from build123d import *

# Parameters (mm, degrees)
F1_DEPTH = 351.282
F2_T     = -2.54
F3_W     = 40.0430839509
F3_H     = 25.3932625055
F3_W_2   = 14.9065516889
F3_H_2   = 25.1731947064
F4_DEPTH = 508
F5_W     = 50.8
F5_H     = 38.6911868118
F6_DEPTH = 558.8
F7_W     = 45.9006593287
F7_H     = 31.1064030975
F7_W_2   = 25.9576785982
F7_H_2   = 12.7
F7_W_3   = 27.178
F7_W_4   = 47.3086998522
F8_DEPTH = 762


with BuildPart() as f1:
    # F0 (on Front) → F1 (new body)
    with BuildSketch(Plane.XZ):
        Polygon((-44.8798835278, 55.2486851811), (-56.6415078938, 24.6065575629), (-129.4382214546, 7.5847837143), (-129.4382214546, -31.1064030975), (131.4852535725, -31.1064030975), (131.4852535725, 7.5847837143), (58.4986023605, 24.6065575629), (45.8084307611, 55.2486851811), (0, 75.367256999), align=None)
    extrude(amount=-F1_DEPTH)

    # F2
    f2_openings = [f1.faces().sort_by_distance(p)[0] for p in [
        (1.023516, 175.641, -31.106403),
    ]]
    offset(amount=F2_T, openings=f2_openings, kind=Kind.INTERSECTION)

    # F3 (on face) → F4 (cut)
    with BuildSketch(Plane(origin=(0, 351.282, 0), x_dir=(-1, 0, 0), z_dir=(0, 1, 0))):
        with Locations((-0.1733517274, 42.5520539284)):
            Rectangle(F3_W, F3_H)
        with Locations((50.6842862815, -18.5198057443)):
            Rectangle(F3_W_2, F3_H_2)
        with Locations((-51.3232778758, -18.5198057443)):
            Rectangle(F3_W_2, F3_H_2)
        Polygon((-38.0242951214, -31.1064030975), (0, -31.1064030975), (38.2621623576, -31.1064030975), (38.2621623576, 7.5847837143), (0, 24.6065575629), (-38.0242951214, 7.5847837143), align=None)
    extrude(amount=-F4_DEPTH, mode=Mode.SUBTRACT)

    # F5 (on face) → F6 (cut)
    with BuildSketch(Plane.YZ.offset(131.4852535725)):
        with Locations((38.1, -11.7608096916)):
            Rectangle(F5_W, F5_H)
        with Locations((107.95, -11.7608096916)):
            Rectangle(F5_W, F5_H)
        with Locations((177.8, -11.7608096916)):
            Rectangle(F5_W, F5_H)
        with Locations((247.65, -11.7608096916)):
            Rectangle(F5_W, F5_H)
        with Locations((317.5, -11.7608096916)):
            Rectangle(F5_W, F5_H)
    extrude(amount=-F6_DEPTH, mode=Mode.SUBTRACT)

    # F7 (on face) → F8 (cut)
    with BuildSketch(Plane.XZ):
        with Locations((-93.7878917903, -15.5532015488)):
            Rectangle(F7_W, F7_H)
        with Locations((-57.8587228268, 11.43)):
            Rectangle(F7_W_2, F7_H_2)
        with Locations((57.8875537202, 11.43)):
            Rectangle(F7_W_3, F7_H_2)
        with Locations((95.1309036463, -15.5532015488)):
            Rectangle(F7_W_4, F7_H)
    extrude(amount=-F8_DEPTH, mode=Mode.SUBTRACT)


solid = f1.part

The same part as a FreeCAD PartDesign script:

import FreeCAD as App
import Part
import Sketcher
from FreeCAD import Vector
Q = App.Units.Quantity


def faces_at(feature, points):
    """Names of the faces that lie closest to the given points."""
    faces = feature.Shape.Faces
    near = lambda p: min(range(len(faces)), key=lambda i: faces[i].distToShape(Part.Vertex(*p))[0])
    return sorted({f"Face{near(p) + 1}" for p in points})


def add_polygon(sketch, points):
    """Adds a closed chain of lines whose ends are joined by coincident constraints."""
    first, n = sketch.GeometryCount, len(points)
    for a, b in zip(points, points[1:] + points[:1]):
        sketch.addGeometry(Part.LineSegment(App.Vector(*a, 0), App.Vector(*b, 0)), False)
    for i in range(n):
        sketch.addConstraint(Sketcher.Constraint("Coincident", first + i, 2, first + (i + 1) % n, 1))

doc = App.newDocument("Part")
body = doc.addObject("PartDesign::Body", "Body")

# Sketch on XZ plane
sketch1 = body.newObject("Sketcher::SketchObject", "Sketch")
sketch1.AttachmentSupport = (doc.getObject("XZ_Plane"), [""])
sketch1.MapMode = "FlatFace"
add_polygon(sketch1, [(-45, 55), (-57, 25), (-129, 8), (-129, -31), (131, -31), (131, 8), (58, 25), (46, 55), (0, 75)])  # lines 0-8
sketch1.addConstraint([
    Sketcher.Constraint("Vertical", 2),
    Sketcher.Constraint("Horizontal", 3),
    Sketcher.Constraint("Vertical", 4),
    Sketcher.Constraint("PointOnObject", 7, 2, -2),
    Sketcher.Constraint("Horizontal", 1, 2, 4, 2),
    Sketcher.Constraint("Horizontal", 0, 2, 5, 2),
    Sketcher.Constraint("Horizontal", 6, 2, 8, 2),
    Sketcher.Constraint("Distance", 0, Q("1.2922 in")),
    Sketcher.Constraint("Distance", 1, 74.760299),
    Sketcher.Constraint("DistanceY", 4, 2, 6, 2, 47.663901),
    Sketcher.Constraint("DistanceY", 0, 2, 7, 2, 50.760699),
    Sketcher.Constraint("Distance", 5, 74.94526),
    Sketcher.Constraint("DistanceX", 3, 1, 3, 2, 260.923475),
    Sketcher.Constraint("DistanceY", 2, 2, 2, 1, 38.691187),
    Sketcher.Constraint("DistanceX", 1, 2, -1, 1, 129.438221),
    Sketcher.Constraint("DistanceX", -1, 1, 6, 2, 45.808431),
    Sketcher.Constraint("DistanceY", 2, 2, 0, 2, 55.712961),
    Sketcher.Constraint("DistanceY", -1, 1, 0, 2, 24.606558),
])
pad1 = body.newObject("PartDesign::Pad", "Pad")
pad1.Profile = sketch1
pad1.Length = Q("13.83 in")
pad1.Reversed = True
doc.recompute()

thickness = body.newObject("PartDesign::Thickness", "Thickness")
thickness.Base = (pad1, faces_at(pad1, [(1.024, 175.641, -31.106)]))
thickness.Value = Q("0.1 in")
thickness.Reversed = True
thickness.Join = "Intersection"

# Sketch on XZ plane
sketch2 = body.newObject("Sketcher::SketchObject", "Sketch001")
sketch2.AttachmentSupport = (doc.getObject("XZ_Plane"), [""])
sketch2.MapMode = "FlatFace"
sketch2.AttachmentOffset = App.Placement(Vector(0, 0, -13.83 * 25.4), App.Rotation())
add_polygon(sketch2, [(20, 55), (20, 30), (-20, 30), (-20, 55)])  # lines 0-3
add_polygon(sketch2, [(-43, -6), (-43, -31), (-58, -31), (-58, -6)])  # lines 4-7
add_polygon(sketch2, [(59, -6), (59, -31), (44, -31), (44, -6)])  # lines 8-11
add_polygon(sketch2, [(38, -31), (-38, -31), (-38, 8), (0, 25), (38, 8)])  # lines 12-16
sketch2.addConstraint([
    Sketcher.Constraint("Vertical", 0),
    Sketcher.Constraint("Horizontal", 1),
    Sketcher.Constraint("Vertical", 2),
    Sketcher.Constraint("Horizontal", 3),
    Sketcher.Constraint("Vertical", 4),
    Sketcher.Constraint("Horizontal", 5),
    Sketcher.Constraint("Vertical", 6),
    Sketcher.Constraint("Horizontal", 7),
    Sketcher.Constraint("Vertical", 8),
    Sketcher.Constraint("Horizontal", 9),
    Sketcher.Constraint("Vertical", 10),
    Sketcher.Constraint("Horizontal", 11),
    Sketcher.Constraint("Horizontal", 12),
    Sketcher.Constraint("Vertical", 13),
    Sketcher.Constraint("Vertical", 16),
    Sketcher.Constraint("PointOnObject", 14, 2, -2),
    Sketcher.Constraint("Horizontal", 5, 2, 8, 2),
    Sketcher.Constraint("Horizontal", 7, 2, 10, 2),
    Sketcher.Constraint("Horizontal", 9, 2, 12, 2),
    Sketcher.Constraint("Horizontal", 13, 2, 15, 2),
    Sketcher.Constraint("Equal", 7, 9),
    Sketcher.Constraint("DistanceX", 5, 2, 5, 1, 14.906552),
    Sketcher.Constraint("DistanceX", 5, 2, 12, 2, 19.8754),
    Sketcher.Constraint("DistanceX", 0, 2, 15, 2, 17.829401),
    Sketcher.Constraint("DistanceX", 1, 2, 1, 1, 40.043084),
    Sketcher.Constraint("DistanceX", 12, 2, 12, 1, 76.286457),
    Sketcher.Constraint("DistanceY", 0, 2, 0, 1, 25.393263),
    Sketcher.Constraint("DistanceY", 4, 2, 4, 1, 25.173195),
    Sketcher.Constraint("DistanceY", 13, 1, 13, 2, 38.691187),
    Sketcher.Constraint("DistanceX", 1, 2, -1, 1, 19.84819),
    Sketcher.Constraint("DistanceY", 6, 2, -1, 1, 5.933208),
    Sketcher.Constraint("DistanceY", 4, 2, 2, 2, 86.355088),
    Sketcher.Constraint("DistanceX", 0, 2, 8, 2, 38.58166),
    Sketcher.Constraint("Distance", 14, 41.877606),
])
pocket1 = body.newObject("PartDesign::Pocket", "Pocket")
pocket1.Profile = sketch2
pocket1.Length = Q("20 in")
pocket1.Reversed = True

# Sketch on YZ plane
sketch3 = body.newObject("Sketcher::SketchObject", "Sketch002")
sketch3.AttachmentSupport = (doc.getObject("YZ_Plane"), [""])
sketch3.MapMode = "FlatFace"
sketch3.AttachmentOffset = App.Placement(Vector(0, 0, 131.485254), App.Rotation())
add_polygon(sketch3, [(13, 8), (13, -31), (64, -31), (64, 8)])  # lines 0-3
add_polygon(sketch3, [(83, 8), (83, -31), (133, -31), (133, 8)])  # lines 4-7
add_polygon(sketch3, [(152, 8), (152, -31), (203, -31), (203, 8)])  # lines 8-11
add_polygon(sketch3, [(222, 8), (222, -31), (273, -31), (273, 8)])  # lines 12-15
add_polygon(sketch3, [(292, 8), (292, -31), (343, -31), (343, 8)])  # lines 16-19
sketch3.addConstraint([
    Sketcher.Constraint("Vertical", 0),
    Sketcher.Constraint("Horizontal", 1),
    Sketcher.Constraint("Vertical", 2),
    Sketcher.Constraint("Horizontal", 3),
    Sketcher.Constraint("Vertical", 4),
    Sketcher.Constraint("Horizontal", 5),
    Sketcher.Constraint("Vertical", 6),
    Sketcher.Constraint("Horizontal", 7),
    Sketcher.Constraint("Vertical", 8),
    Sketcher.Constraint("Horizontal", 9),
    Sketcher.Constraint("Vertical", 10),
    Sketcher.Constraint("Horizontal", 11),
    Sketcher.Constraint("Vertical", 12),
    Sketcher.Constraint("Horizontal", 13),
    Sketcher.Constraint("Vertical", 14),
    Sketcher.Constraint("Horizontal", 15),
    Sketcher.Constraint("Vertical", 16),
    Sketcher.Constraint("Horizontal", 17),
    Sketcher.Constraint("Vertical", 18),
    Sketcher.Constraint("Horizontal", 19),
    Sketcher.Constraint("Horizontal", 1, 2, 4, 2),
    Sketcher.Constraint("Horizontal", 3, 2, 6, 2),
    Sketcher.Constraint("Horizontal", 5, 2, 8, 2),
    Sketcher.Constraint("Horizontal", 7, 2, 10, 2),
    Sketcher.Constraint("Horizontal", 9, 2, 12, 2),
    Sketcher.Constraint("Horizontal", 11, 2, 14, 2),
    Sketcher.Constraint("Horizontal", 13, 2, 16, 2),
    Sketcher.Constraint("Horizontal", 15, 2, 18, 2),
    Sketcher.Constraint("Equal", 3, 5),
    Sketcher.Constraint("Equal", 7, 9),
    Sketcher.Constraint("Equal", 11, 13),
    Sketcher.Constraint("Equal", 15, 17),
    Sketcher.Constraint("DistanceX", 1, 1, 1, 2, Q("2 in")),
    Sketcher.Constraint("DistanceX", -1, 1, 8, 2, Q("6 in")),
    Sketcher.Constraint("DistanceX", -1, 1, 0, 2, Q("0.5 in")),
    Sketcher.Constraint("DistanceX", -1, 1, 16, 2, Q("11.5 in")),
    Sketcher.Constraint("DistanceX", 5, 2, 12, 2, Q("3.5 in")),
    Sketcher.Constraint("DistanceX", -1, 1, 4, 2, Q("3.25 in")),
    Sketcher.Constraint("DistanceY", 0, 2, 0, 1, 38.691187),
    Sketcher.Constraint("DistanceY", 0, 2, -1, 1, 31.106403),
])
pocket2 = body.newObject("PartDesign::Pocket", "Pocket001")
pocket2.Profile = sketch3
pocket2.Length = Q("22 in")

# Sketch on XZ plane
sketch4 = body.newObject("Sketcher::SketchObject", "Sketch003")
sketch4.AttachmentSupport = (doc.getObject("XZ_Plane"), [""])
sketch4.MapMode = "FlatFace"
add_polygon(sketch4, [(-117, 0), (-117, -31), (-71, -31), (-71, 0)])  # lines 0-3
add_polygon(sketch4, [(-71, 18), (-71, 5), (-45, 5), (-45, 18)])  # lines 4-7
add_polygon(sketch4, [(44, 18), (44, 5), (71, 5), (71, 18)])  # lines 8-11
add_polygon(sketch4, [(71, 0), (71, -31), (119, -31), (119, 0)])  # lines 12-15
sketch4.addConstraint([
    Sketcher.Constraint("Vertical", 0),
    Sketcher.Constraint("Horizontal", 1),
    Sketcher.Constraint("Vertical", 2),
    Sketcher.Constraint("Horizontal", 3),
    Sketcher.Constraint("Vertical", 4),
    Sketcher.Constraint("Horizontal", 5),
    Sketcher.Constraint("Vertical", 6),
    Sketcher.Constraint("Horizontal", 7),
    Sketcher.Constraint("Vertical", 8),
    Sketcher.Constraint("Horizontal", 9),
    Sketcher.Constraint("Vertical", 10),
    Sketcher.Constraint("Horizontal", 11),
    Sketcher.Constraint("Vertical", 12),
    Sketcher.Constraint("Horizontal", 13),
    Sketcher.Constraint("Vertical", 14),
    Sketcher.Constraint("Horizontal", 15),
    Sketcher.Constraint("PointOnObject", 2, 2, -1),
    Sketcher.Constraint("PointOnObject", 14, 2, -1),
    Sketcher.Constraint("Horizontal", 5, 2, 8, 2),
    Sketcher.Constraint("Horizontal", 7, 2, 10, 2),
    Sketcher.Constraint("Horizontal", 1, 2, 12, 2),
    Sketcher.Constraint("Vertical", 2, 2, 4, 2),
    Sketcher.Constraint("Vertical", 10, 2, 12, 2),
    Sketcher.Constraint("DistanceY", 4, 2, 4, 1, Q("0.5 in")),
    Sketcher.Constraint("DistanceX", 9, 1, 9, 2, Q("1.07 in")),
    Sketcher.Constraint("DistanceY", -1, 1, 4, 2, Q("0.2 in")),
    Sketcher.Constraint("DistanceX", 13, 1, 13, 2, 47.3087),
    Sketcher.Constraint("DistanceX", 1, 1, 1, 2, 45.900659),
    Sketcher.Constraint("DistanceX", 5, 1, 5, 2, 25.957679),
    Sketcher.Constraint("DistanceY", 0, 2, 0, 1, 31.106403),
    Sketcher.Constraint("DistanceX", 0, 2, -1, 1, 116.738221),
    Sketcher.Constraint("DistanceX", -1, 1, 8, 2, 44.298554),
])
pocket3 = body.newObject("PartDesign::Pocket", "Pocket002")
pocket3.Profile = sketch4
pocket3.Length = Q("30 in")

doc.recompute()
